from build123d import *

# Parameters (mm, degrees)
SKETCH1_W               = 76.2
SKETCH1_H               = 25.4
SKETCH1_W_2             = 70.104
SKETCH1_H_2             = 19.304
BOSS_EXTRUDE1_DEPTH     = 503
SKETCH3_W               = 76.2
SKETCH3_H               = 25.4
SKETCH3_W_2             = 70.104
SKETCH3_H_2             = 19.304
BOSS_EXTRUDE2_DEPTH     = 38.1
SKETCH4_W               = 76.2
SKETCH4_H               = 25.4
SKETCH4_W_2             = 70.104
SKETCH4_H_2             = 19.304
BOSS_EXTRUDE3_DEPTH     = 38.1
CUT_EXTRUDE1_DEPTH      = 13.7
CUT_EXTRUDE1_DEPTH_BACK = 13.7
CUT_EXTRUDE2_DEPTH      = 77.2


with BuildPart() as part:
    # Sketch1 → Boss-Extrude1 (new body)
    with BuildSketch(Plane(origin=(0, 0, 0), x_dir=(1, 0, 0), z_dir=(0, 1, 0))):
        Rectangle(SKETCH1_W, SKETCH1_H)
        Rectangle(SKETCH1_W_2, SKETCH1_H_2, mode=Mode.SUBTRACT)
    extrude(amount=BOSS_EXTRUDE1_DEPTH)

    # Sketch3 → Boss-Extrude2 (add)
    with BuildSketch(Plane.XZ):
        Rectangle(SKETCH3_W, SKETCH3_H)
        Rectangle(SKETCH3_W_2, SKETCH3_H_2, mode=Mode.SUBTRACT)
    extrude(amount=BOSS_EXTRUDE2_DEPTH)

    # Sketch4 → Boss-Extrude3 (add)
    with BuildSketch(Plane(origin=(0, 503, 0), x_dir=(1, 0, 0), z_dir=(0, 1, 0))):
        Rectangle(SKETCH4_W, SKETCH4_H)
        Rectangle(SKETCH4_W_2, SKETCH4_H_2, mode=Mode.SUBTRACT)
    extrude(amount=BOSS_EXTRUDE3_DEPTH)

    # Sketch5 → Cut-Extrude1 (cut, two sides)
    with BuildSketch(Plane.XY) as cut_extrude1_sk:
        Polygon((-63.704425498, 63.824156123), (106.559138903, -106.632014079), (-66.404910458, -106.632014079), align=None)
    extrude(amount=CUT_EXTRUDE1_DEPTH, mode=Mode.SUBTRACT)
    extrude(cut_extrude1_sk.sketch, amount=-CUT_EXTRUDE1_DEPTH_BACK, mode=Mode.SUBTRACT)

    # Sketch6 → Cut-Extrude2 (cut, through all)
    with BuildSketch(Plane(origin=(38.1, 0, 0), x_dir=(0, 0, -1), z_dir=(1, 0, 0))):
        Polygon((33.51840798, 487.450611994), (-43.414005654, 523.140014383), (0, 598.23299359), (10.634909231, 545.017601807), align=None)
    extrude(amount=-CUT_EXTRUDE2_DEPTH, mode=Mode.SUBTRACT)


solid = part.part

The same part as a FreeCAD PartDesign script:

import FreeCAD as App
import Part
import Sketcher
from FreeCAD import Vector
Q = App.Units.Quantity

doc = App.newDocument("Part")
body = doc.addObject("PartDesign::Body", "Body")
body.AllowCompound = True

# Sketch on XZ plane
sketch1 = doc.addObject("Sketcher::SketchObject", "Sketch")
body.addObject(sketch1)
sketch1.AttachmentSupport = (doc.XZ_Plane, [""])
sketch1.MapMode = "FlatFace"
sketch1.addGeometry([
    Part.LineSegment(Vector(-38.1, -12.7, 0), Vector(-38.1, 12.7, 0)),  # 0
    Part.LineSegment(Vector(-38.1, 12.7, 0), Vector(38.1, 12.7, 0)),  # 1
    Part.LineSegment(Vector(38.1, 12.7, 0), Vector(38.1, -12.7, 0)),  # 2
    Part.LineSegment(Vector(38.1, -12.7, 0), Vector(-38.1, -12.7, 0)),  # 3
    Part.LineSegment(Vector(35.052, 9.652, 0), Vector(-35.052, 9.652, 0)),  # 4
    Part.LineSegment(Vector(-35.052, 9.652, 0), Vector(-35.052, -9.652, 0)),  # 5
    Part.LineSegment(Vector(-35.052, -9.652, 0), Vector(35.052, -9.652, 0)),  # 6
    Part.LineSegment(Vector(35.052, -9.652, 0), Vector(35.052, 9.652, 0)),  # 7
], False)
sketch1.addConstraint([
    Sketcher.Constraint("Coincident", 0, 2, 1, 1),
    Sketcher.Constraint("Coincident", 1, 2, 2, 1),
    Sketcher.Constraint("Coincident", 2, 2, 3, 1),
    Sketcher.Constraint("Coincident", 3, 2, 0, 1),
    Sketcher.Constraint("Coincident", 4, 2, 5, 1),
    Sketcher.Constraint("Coincident", 5, 2, 6, 1),
    Sketcher.Constraint("Coincident", 6, 2, 7, 1),
    Sketcher.Constraint("Coincident", 7, 2, 4, 1),
    Sketcher.Constraint("Vertical", 0),
    Sketcher.Constraint("Horizontal", 1),
    Sketcher.Constraint("Vertical", 2),
    Sketcher.Constraint("Horizontal", 3),
    Sketcher.Constraint("Horizontal", 4),
    Sketcher.Constraint("Vertical", 5),
    Sketcher.Constraint("Horizontal", 6),
    Sketcher.Constraint("Vertical", 7),
    Sketcher.Constraint("Symmetric", 0, 2, 2, 2, -1, 1),
    Sketcher.Constraint("Symmetric", 4, 2, 6, 2, -1, 1),
    Sketcher.Constraint("DistanceX", 1, 1, 1, 2, Q("3 in")),
    Sketcher.Constraint("DistanceY", 0, 1, 0, 2, Q("1 in")),
    Sketcher.Constraint("DistanceX", 4, 2, 4, 1, Q("2.76 in")),
    Sketcher.Constraint("DistanceY", 5, 2, 5, 1, Q("0.76 in")),
])
pad1 = doc.addObject("PartDesign::Pad", "Pad")
body.addObject(pad1)
pad1.Profile = sketch1
pad1.Length = 503
pad1.Reversed = True

# Sketch on XZ plane
sketch2 = doc.addObject("Sketcher::SketchObject", "Sketch001")
body.addObject(sketch2)
sketch2.AttachmentSupport = (doc.XZ_Plane, [""])
sketch2.MapMode = "FlatFace"
sketch2.addGeometry([
    Part.LineSegment(Vector(-38.1, 12.7, 0), Vector(-38.1, -12.7, 0)),  # 0
    Part.LineSegment(Vector(-38.1, -12.7, 0), Vector(38.1, -12.7, 0)),  # 1
    Part.LineSegment(Vector(38.1, -12.7, 0), Vector(38.1, 12.7, 0)),  # 2
    Part.LineSegment(Vector(38.1, 12.7, 0), Vector(-38.1, 12.7, 0)),  # 3
    Part.LineSegment(Vector(35.052, -9.652, 0), Vector(-35.052, -9.652, 0)),  # 4
    Part.LineSegment(Vector(-35.052, -9.652, 0), Vector(-35.052, 9.652, 0)),  # 5
    Part.LineSegment(Vector(-35.052, 9.652, 0), Vector(35.052, 9.652, 0)),  # 6
    Part.LineSegment(Vector(35.052, 9.652, 0), Vector(35.052, -9.652, 0)),  # 7
], False)
sketch2.addConstraint([
    Sketcher.Constraint("Coincident", 0, 2, 1, 1),
    Sketcher.Constraint("Coincident", 1, 2, 2, 1),
    Sketcher.Constraint("Coincident", 2, 2, 3, 1),
    Sketcher.Constraint("Coincident", 3, 2, 0, 1),
    Sketcher.Constraint("Coincident", 4, 2, 5, 1),
    Sketcher.Constraint("Coincident", 5, 2, 6, 1),
    Sketcher.Constraint("Coincident", 6, 2, 7, 1),
    Sketcher.Constraint("Coincident", 7, 2, 4, 1),
    Sketcher.Constraint("Vertical", 0),
    Sketcher.Constraint("Horizontal", 1),
    Sketcher.Constraint("Vertical", 2),
    Sketcher.Constraint("Horizontal", 3),
    Sketcher.Constraint("Horizontal", 4),
    Sketcher.Constraint("Vertical", 5),
    Sketcher.Constraint("Horizontal", 6),
    Sketcher.Constraint("Vertical", 7),
    Sketcher.Constraint("Symmetric", 0, 2, 2, 2, -1, 1),
    Sketcher.Constraint("Symmetric", 4, 2, 6, 2, -1, 1),
    Sketcher.Constraint("DistanceX", 1, 1, 1, 2, Q("3 in")),
    Sketcher.Constraint("DistanceY", 0, 2, 0, 1, Q("1 in")),
    Sketcher.Constraint("DistanceX", 4, 2, 4, 1, Q("2.76 in")),
    Sketcher.Constraint("DistanceY", 5, 1, 5, 2, Q("0.76 in")),
])
pad2 = doc.addObject("PartDesign::Pad", "Pad001")
body.addObject(pad2)
pad2.Profile = sketch2
pad2.Length = Q("1.5 in")

# Sketch on XZ plane
sketch3 = doc.addObject("Sketcher::SketchObject", "Sketch002")
body.addObject(sketch3)
sketch3.AttachmentSupport = (doc.XZ_Plane, [""])
sketch3.MapMode = "FlatFace"
sketch3.AttachmentOffset = App.Placement(Vector(0, 0, -503), App.Rotation())
sketch3.addGeometry([
    Part.LineSegment(Vector(-38.1, -12.7, 0), Vector(-38.1, 12.7, 0)),  # 0
    Part.LineSegment(Vector(-38.1, 12.7, 0), Vector(38.1, 12.7, 0)),  # 1
    Part.LineSegment(Vector(38.1, 12.7, 0), Vector(38.1, -12.7, 0)),  # 2
    Part.LineSegment(Vector(38.1, -12.7, 0), Vector(-38.1, -12.7, 0)),  # 3
    Part.LineSegment(Vector(35.052, 9.652, 0), Vector(-35.052, 9.652, 0)),  # 4
    Part.LineSegment(Vector(-35.052, 9.652, 0), Vector(-35.052, -9.652, 0)),  # 5
    Part.LineSegment(Vector(-35.052, -9.652, 0), Vector(35.052, -9.652, 0)),  # 6
    Part.LineSegment(Vector(35.052, -9.652, 0), Vector(35.052, 9.652, 0)),  # 7
], False)
sketch3.addConstraint([
    Sketcher.Constraint("Coincident", 0, 2, 1, 1),
    Sketcher.Constraint("Coincident", 1, 2, 2, 1),
    Sketcher.Constraint("Coincident", 2, 2, 3, 1),
    Sketcher.Constraint("Coincident", 3, 2, 0, 1),
    Sketcher.Constraint("Coincident", 4, 2, 5, 1),
    Sketcher.Constraint("Coincident", 5, 2, 6, 1),
    Sketcher.Constraint("Coincident", 6, 2, 7, 1),
    Sketcher.Constraint("Coincident", 7, 2, 4, 1),
    Sketcher.Constraint("Vertical", 0),
    Sketcher.Constraint("Horizontal", 1),
    Sketcher.Constraint("Vertical", 2),
    Sketcher.Constraint("Horizontal", 3),
    Sketcher.Constraint("Horizontal", 4),
    Sketcher.Constraint("Vertical", 5),
    Sketcher.Constraint("Horizontal", 6),
    Sketcher.Constraint("Vertical", 7),
    Sketcher.Constraint("Symmetric", 0, 2, 2, 2, -1, 1),
    Sketcher.Constraint("Symmetric", 4, 2, 6, 2, -1, 1),
    Sketcher.Constraint("DistanceX", 1, 1, 1, 2, Q("3 in")),
    Sketcher.Constraint("DistanceY", 0, 1, 0, 2, Q("1 in")),
    Sketcher.Constraint("DistanceX", 4, 2, 4, 1, Q("2.76 in")),
    Sketcher.Constraint("DistanceY", 5, 2, 5, 1, Q("0.76 in")),
])
pad3 = doc.addObject("PartDesign::Pad", "Pad002")
body.addObject(pad3)
pad3.Profile = sketch3
pad3.Length = Q("1.5 in")
pad3.Reversed = True

# Sketch on XY plane
sketch4 = doc.addObject("Sketcher::SketchObject", "Sketch003")
body.addObject(sketch4)
sketch4.AttachmentSupport = (doc.XY_Plane, [""])
sketch4.MapMode = "FlatFace"
sketch4.addGeometry([
    Part.LineSegment(Vector(106.559139, -106.632014, 0), Vector(-63.704425, 63.824156, 0)),
    Part.LineSegment(Vector(-63.704425, 63.824156, 0), Vector(-66.40491, -106.632014, 0)),
    Part.LineSegment(Vector(-66.40491, -106.632014, 0), Vector(106.559139, -106.632014, 0)),
], False)
sketch4.addConstraint([
    Sketcher.Constraint("Coincident", 0, 2, 1, 1),
    Sketcher.Constraint("Coincident", 1, 2, 2, 1),
    Sketcher.Constraint("Coincident", 2, 2, 0, 1),
    Sketcher.Constraint("Horizontal", 2),
    Sketcher.Constraint("DistanceX", 2, 1, 2, 2, 172.964049),
    Sketcher.Constraint("Distance", 1, 170.47756),
    Sketcher.Constraint("DistanceX", 1, 2, -1, 1, 66.40491),
    Sketcher.Constraint("DistanceY", 1, 2, 0, 2, 170.45617),
    Sketcher.Constraint("DistanceY", -1, 1, 0, 2, 63.824156),
])
pocket1 = doc.addObject("PartDesign::Pocket", "Pocket")
body.addObject(pocket1)
pocket1.Profile = sketch4
pocket1.Type = "ThroughAll"
pocket1.Midplane = True

# Sketch on YZ plane
sketch5 = doc.addObject("Sketcher::SketchObject", "Sketch004")
body.addObject(sketch5)
sketch5.AttachmentSupport = (doc.YZ_Plane, [""])
sketch5.MapMode = "FlatFace"
sketch5.AttachmentOffset = App.Placement(Vector(0, 0, 1.5 * 25.4), App.Rotation())
sketch5.addGeometry([
    Part.LineSegment(Vector(523.140014, 43.414006, 0), Vector(487.450612, -33.518408, 0)),
    Part.LineSegment(Vector(487.450612, -33.518408, 0), Vector(545.017602, -10.634909, 0)),
    Part.LineSegment(Vector(545.017602, -10.634909, 0), Vector(598.232994, 0, 0)),
    Part.LineSegment(Vector(598.232994, 0, 0), Vector(523.140014, 43.414006, 0)),
], False)
sketch5.addConstraint([
    Sketcher.Constraint("Coincident", 0, 2, 1, 1),
    Sketcher.Constraint("Coincident", 1, 2, 2, 1),
    Sketcher.Constraint("Coincident", 2, 2, 3, 1),
    Sketcher.Constraint("Coincident", 3, 2, 0, 1),
    Sketcher.Constraint("PointOnObject", 2, 2, -1),
    Sketcher.Constraint("DistanceX", -1, 1, 1, 2, 545.017602),
    Sketcher.Constraint("DistanceY", 0, 2, 1, 2, 22.883499),
    Sketcher.Constraint("Distance", 1, 61.948469),
    Sketcher.Constraint("DistanceY", 1, 2, -1, 1, 10.634909),
    Sketcher.Constraint("DistanceX", 1, 2, 2, 2, 53.215392),
    Sketcher.Constraint("DistanceX", 3, 2, 2, 2, 75.092979),
    Sketcher.Constraint("Distance", 0, 84.807604),
])
pocket2 = doc.addObject("PartDesign::Pocket", "Pocket001")
body.addObject(pocket2)
pocket2.Profile = sketch5
pocket2.Type = "ThroughAll"

doc.recompute()
